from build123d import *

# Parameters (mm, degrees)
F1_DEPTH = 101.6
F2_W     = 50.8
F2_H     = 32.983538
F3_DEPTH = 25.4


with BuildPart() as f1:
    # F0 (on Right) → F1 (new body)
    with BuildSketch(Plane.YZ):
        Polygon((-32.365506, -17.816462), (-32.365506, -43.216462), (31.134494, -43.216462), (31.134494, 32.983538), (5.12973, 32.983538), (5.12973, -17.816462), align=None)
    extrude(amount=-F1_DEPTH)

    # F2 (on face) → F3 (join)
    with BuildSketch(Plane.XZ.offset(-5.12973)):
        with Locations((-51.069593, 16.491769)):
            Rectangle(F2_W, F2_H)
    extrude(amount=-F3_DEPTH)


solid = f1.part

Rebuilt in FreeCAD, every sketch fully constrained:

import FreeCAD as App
import Part
import Sketcher

V = App.Vector
Q = App.Units.Quantity

doc = App.newDocument("Part")
body = doc.addObject("PartDesign::Body", "Body")

# Sketch on YZ plane
sketch1 = doc.addObject("Sketcher::SketchObject", "Sketch")
body.addObject(sketch1)
sketch1.AttachmentSupport = (doc.YZ_Plane, [""])
sketch1.MapMode = "FlatFace"
sketch1.addGeometry([
    Part.LineSegment(V(-32, -18, 0), V(-32, -43, 0)),  # 0
    Part.LineSegment(V(-32, -43, 0), V(31, -43, 0)),  # 1
    Part.LineSegment(V(31, -43, 0), V(31, 33, 0)),  # 2
    Part.LineSegment(V(31, 33, 0), V(5, 33, 0)),  # 3
    Part.LineSegment(V(5, 33, 0), V(5, -18, 0)),  # 4
    Part.LineSegment(V(5, -18, 0), V(-32, -18, 0)),  # 5
], False)
sketch1.addConstraint([
    Sketcher.Constraint("Coincident", 0, 2, 1, 1),
    Sketcher.Constraint("Coincident", 1, 2, 2, 1),
    Sketcher.Constraint("Coincident", 2, 2, 3, 1),
    Sketcher.Constraint("Coincident", 3, 2, 4, 1),
    Sketcher.Constraint("Coincident", 4, 2, 5, 1),
    Sketcher.Constraint("Coincident", 5, 2, 0, 1),
    Sketcher.Constraint("Vertical", 0),
    Sketcher.Constraint("Horizontal", 1),
    Sketcher.Constraint("Vertical", 2),
    Sketcher.Constraint("Horizontal", 3),
    Sketcher.Constraint("Vertical", 4),
    Sketcher.Constraint("Horizontal", 5),
    Sketcher.Constraint("DistanceY", 0, 2, 0, 1, Q("1 in")),
    Sketcher.Constraint("DistanceY", 2, 1, 2, 2, Q("3 in")),
    Sketcher.Constraint("DistanceX", 1, 1, 1, 2, Q("2.5 in")),
    Sketcher.Constraint("DistanceX", 3, 2, 3, 1, 26.004764),
    Sketcher.Constraint("DistanceY", -1, 1, 2, 2, 32.983538),
    Sketcher.Constraint("DistanceX", -1, 1, 3, 2, 5.12973),
])
pad1 = doc.addObject("PartDesign::Pad", "Pad")
body.addObject(pad1)
pad1.Profile = sketch1
pad1.Length = Q("4 in")
pad1.Reversed = True

# Sketch on XZ plane
sketch2 = doc.addObject("Sketcher::SketchObject", "Sketch001")
body.addObject(sketch2)
sketch2.AttachmentSupport = (doc.XZ_Plane, [""])
sketch2.MapMode = "FlatFace"
sketch2.AttachmentOffset = App.Placement(V(0, 0, -5.12973), App.Rotation())
sketch2.addGeometry([
    Part.LineSegment(V(-76, 33, 0), V(-76, 0, 0)),
    Part.LineSegment(V(-76, 0, 0), V(-26, 0, 0)),
    Part.LineSegment(V(-26, 0, 0), V(-26, 33, 0)),
    Part.LineSegment(V(-26, 33, 0), V(-76, 33, 0)),
], False)
sketch2.addConstraint([
    Sketcher.Constraint("Coincident", 0, 2, 1, 1),
    Sketcher.Constraint("Coincident", 1, 2, 2, 1),
    Sketcher.Constraint("Coincident", 2, 2, 3, 1),
    Sketcher.Constraint("Coincident", 3, 2, 0, 1),
    Sketcher.Constraint("Vertical", 0),
    Sketcher.Constraint("Horizontal", 1),
    Sketcher.Constraint("Vertical", 2),
    Sketcher.Constraint("Horizontal", 3),
    Sketcher.Constraint("PointOnObject", 0, 2, -1),
    Sketcher.Constraint("DistanceX", 1, 1, 1, 2, Q("2 in")),
    Sketcher.Constraint("DistanceY", 0, 2, 0, 1, 32.983538),
    Sketcher.Constraint("DistanceX", 0, 2, -1, 1, 76.469593),
])
pad2 = doc.addObject("PartDesign::Pad", "Pad001")
body.addObject(pad2)
pad2.Profile = sketch2
pad2.Length = Q("1 in")
pad2.Reversed = True

doc.recompute()
